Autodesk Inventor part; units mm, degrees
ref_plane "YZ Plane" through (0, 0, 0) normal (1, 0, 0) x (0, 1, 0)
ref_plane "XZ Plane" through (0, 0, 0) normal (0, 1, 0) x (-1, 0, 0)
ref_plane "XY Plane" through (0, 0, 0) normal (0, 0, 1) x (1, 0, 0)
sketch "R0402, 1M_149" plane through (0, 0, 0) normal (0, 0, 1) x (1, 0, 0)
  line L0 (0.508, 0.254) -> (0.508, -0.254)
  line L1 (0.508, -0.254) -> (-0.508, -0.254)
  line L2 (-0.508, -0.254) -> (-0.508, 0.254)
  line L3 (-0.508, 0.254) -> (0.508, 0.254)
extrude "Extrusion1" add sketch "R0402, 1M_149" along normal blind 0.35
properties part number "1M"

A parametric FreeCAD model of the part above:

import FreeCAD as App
import Part
import Sketcher
Q = App.Units.Quantity

doc = App.newDocument("Part")
body = doc.addObject("PartDesign::Body", "Body")

sketch1 = doc.addObject("Sketcher::SketchObject", "Sketch")
body.addObject(sketch1)
sketch1.AttachmentSupport = (doc.XY_Plane, [""])
sketch1.MapMode = "FlatFace"
sketch1.addGeometry([
    Part.LineSegment(App.Vector(0.5, -0.3, 0), App.Vector(0.5, 0.3, 0)),
    Part.LineSegment(App.Vector(0.5, 0.3, 0), App.Vector(-0.5, 0.3, 0)),
    Part.LineSegment(App.Vector(-0.5, 0.3, 0), App.Vector(-0.5, -0.3, 0)),
    Part.LineSegment(App.Vector(-0.5, -0.3, 0), App.Vector(0.5, -0.3, 0)),
], False)
sketch1.addConstraint([
    Sketcher.Constraint("Coincident", 0, 2, 1, 1),
    Sketcher.Constraint("Coincident", 1, 2, 2, 1),
    Sketcher.Constraint("Coincident", 2, 2, 3, 1),
    Sketcher.Constraint("Coincident", 3, 2, 0, 1),
    Sketcher.Constraint("Vertical", 0),
    Sketcher.Constraint("Horizontal", 1),
    Sketcher.Constraint("Vertical", 2),
    Sketcher.Constraint("Horizontal", 3),
    Sketcher.Constraint("Symmetric", 0, 2, 2, 2, -1, 1),
    Sketcher.Constraint("DistanceX", 1, 2, 1, 1, Q("0.04 in")),
    Sketcher.Constraint("DistanceY", 0, 1, 0, 2, Q("0.02 in")),
])
pad1 = doc.addObject("PartDesign::Pad", "Pad")
body.addObject(pad1)
pad1.Profile = sketch1
pad1.Length = 0.35

doc.recompute()
